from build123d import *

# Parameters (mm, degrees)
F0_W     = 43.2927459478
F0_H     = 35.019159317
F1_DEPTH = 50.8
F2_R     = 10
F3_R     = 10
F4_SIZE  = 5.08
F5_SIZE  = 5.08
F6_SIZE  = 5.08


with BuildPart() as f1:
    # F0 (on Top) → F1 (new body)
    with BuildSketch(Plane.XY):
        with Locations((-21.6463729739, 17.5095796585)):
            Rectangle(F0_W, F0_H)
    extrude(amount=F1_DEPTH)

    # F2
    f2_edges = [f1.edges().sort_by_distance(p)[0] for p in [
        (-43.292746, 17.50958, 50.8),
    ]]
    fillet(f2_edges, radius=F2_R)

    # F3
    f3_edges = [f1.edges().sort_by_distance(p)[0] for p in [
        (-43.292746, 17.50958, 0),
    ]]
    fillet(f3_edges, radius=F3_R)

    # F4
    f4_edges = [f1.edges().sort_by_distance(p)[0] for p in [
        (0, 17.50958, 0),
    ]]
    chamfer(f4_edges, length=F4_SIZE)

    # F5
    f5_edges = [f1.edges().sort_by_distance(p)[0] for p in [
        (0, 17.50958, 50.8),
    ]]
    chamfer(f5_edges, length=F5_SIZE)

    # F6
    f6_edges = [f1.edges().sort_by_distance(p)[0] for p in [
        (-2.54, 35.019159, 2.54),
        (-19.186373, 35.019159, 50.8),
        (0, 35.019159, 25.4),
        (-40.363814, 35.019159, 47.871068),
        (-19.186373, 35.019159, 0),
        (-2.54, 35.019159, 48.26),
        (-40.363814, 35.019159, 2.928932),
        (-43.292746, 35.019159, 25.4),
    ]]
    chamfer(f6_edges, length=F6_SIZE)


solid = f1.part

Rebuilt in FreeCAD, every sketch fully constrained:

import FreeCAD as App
import Part
import Sketcher
Q = App.Units.Quantity


def edges_at(feature, points):
    """Names of the edges that pass closest to the given points."""
    edges = feature.Shape.Edges
    near = lambda p: min(range(len(edges)), key=lambda i: edges[i].distToShape(Part.Vertex(*p))[0])
    return sorted({f"Edge{near(p) + 1}" for p in points})


def add_polygon(sketch, points):
    """Adds a closed chain of lines whose ends are joined by coincident constraints."""
    first, n = sketch.GeometryCount, len(points)
    for a, b in zip(points, points[1:] + points[:1]):
        sketch.addGeometry(Part.LineSegment(App.Vector(*a, 0), App.Vector(*b, 0)), False)
    for i in range(n):
        sketch.addConstraint(Sketcher.Constraint("Coincident", first + i, 2, first + (i + 1) % n, 1))

doc = App.newDocument("Part")
body = doc.addObject("PartDesign::Body", "Body")

# Sketch on XY plane
sketch1 = doc.addObject("Sketcher::SketchObject", "Sketch")
body.addObject(sketch1)
sketch1.AttachmentSupport = (doc.XY_Plane, [""])
sketch1.MapMode = "FlatFace"
add_polygon(sketch1, [(-43.292746, 35.019159), (-43.292746, 0), (0, 0), (0, 35.019159)])  # lines 0-3
sketch1.addConstraint(Sketcher.Constraint("Vertical", 0))
sketch1.addConstraint(Sketcher.Constraint("Horizontal", 1))
sketch1.addConstraint(Sketcher.Constraint("Vertical", 2))
sketch1.addConstraint(Sketcher.Constraint("Horizontal", 3))
sketch1.addConstraint(Sketcher.Constraint("Coincident", 1, 2, -1, 1))
sketch1.addConstraint(Sketcher.Constraint("DistanceY", 0, 2, 0, 1, 35.019159))
sketch1.addConstraint(Sketcher.Constraint("DistanceX", 1, 1, 1, 2, 43.292746))
pad1 = doc.addObject("PartDesign::Pad", "Pad")
body.addObject(pad1)
pad1.Profile = sketch1
pad1.Length = Q("2 in")
doc.recompute()

fillet = doc.addObject("PartDesign::Fillet", "Fillet")
body.addObject(fillet)
fillet.Base = (pad1, edges_at(pad1, [(-43.293, 17.51, 50.8)]))
fillet.Radius = 10
doc.recompute()

fillet2 = doc.addObject("PartDesign::Fillet", "Fillet001")
body.addObject(fillet2)
fillet2.Base = (fillet, edges_at(fillet, [(-43.293, 17.51, 0)]))
fillet2.Radius = 10
doc.recompute()

chamfer = doc.addObject("PartDesign::Chamfer", "Chamfer")
body.addObject(chamfer)
chamfer.Base = (fillet2, edges_at(fillet2, [(0, 17.51, 0)]))
chamfer.Size = Q("0.2 in")
doc.recompute()

chamfer2 = doc.addObject("PartDesign::Chamfer", "Chamfer001")
body.addObject(chamfer2)
chamfer2.Base = (chamfer, edges_at(chamfer, [(0, 17.51, 50.8)]))
chamfer2.Size = Q("0.2 in")
doc.recompute()

chamfer3 = doc.addObject("PartDesign::Chamfer", "Chamfer002")
body.addObject(chamfer3)
chamfer3.Base = (chamfer2, edges_at(chamfer2, [
    (-2.54, 35.019, 2.54),
    (-19.186, 35.019, 50.8),
    (0, 35.019, 25.4),
    (-40.364, 35.019, 47.871),
    (-19.186, 35.019, 0),
    (-2.54, 35.019, 48.26),
    (-40.364, 35.019, 2.929),
    (-43.293, 35.019, 25.4),
]))
chamfer3.Size = Q("0.2 in")

doc.recompute()
